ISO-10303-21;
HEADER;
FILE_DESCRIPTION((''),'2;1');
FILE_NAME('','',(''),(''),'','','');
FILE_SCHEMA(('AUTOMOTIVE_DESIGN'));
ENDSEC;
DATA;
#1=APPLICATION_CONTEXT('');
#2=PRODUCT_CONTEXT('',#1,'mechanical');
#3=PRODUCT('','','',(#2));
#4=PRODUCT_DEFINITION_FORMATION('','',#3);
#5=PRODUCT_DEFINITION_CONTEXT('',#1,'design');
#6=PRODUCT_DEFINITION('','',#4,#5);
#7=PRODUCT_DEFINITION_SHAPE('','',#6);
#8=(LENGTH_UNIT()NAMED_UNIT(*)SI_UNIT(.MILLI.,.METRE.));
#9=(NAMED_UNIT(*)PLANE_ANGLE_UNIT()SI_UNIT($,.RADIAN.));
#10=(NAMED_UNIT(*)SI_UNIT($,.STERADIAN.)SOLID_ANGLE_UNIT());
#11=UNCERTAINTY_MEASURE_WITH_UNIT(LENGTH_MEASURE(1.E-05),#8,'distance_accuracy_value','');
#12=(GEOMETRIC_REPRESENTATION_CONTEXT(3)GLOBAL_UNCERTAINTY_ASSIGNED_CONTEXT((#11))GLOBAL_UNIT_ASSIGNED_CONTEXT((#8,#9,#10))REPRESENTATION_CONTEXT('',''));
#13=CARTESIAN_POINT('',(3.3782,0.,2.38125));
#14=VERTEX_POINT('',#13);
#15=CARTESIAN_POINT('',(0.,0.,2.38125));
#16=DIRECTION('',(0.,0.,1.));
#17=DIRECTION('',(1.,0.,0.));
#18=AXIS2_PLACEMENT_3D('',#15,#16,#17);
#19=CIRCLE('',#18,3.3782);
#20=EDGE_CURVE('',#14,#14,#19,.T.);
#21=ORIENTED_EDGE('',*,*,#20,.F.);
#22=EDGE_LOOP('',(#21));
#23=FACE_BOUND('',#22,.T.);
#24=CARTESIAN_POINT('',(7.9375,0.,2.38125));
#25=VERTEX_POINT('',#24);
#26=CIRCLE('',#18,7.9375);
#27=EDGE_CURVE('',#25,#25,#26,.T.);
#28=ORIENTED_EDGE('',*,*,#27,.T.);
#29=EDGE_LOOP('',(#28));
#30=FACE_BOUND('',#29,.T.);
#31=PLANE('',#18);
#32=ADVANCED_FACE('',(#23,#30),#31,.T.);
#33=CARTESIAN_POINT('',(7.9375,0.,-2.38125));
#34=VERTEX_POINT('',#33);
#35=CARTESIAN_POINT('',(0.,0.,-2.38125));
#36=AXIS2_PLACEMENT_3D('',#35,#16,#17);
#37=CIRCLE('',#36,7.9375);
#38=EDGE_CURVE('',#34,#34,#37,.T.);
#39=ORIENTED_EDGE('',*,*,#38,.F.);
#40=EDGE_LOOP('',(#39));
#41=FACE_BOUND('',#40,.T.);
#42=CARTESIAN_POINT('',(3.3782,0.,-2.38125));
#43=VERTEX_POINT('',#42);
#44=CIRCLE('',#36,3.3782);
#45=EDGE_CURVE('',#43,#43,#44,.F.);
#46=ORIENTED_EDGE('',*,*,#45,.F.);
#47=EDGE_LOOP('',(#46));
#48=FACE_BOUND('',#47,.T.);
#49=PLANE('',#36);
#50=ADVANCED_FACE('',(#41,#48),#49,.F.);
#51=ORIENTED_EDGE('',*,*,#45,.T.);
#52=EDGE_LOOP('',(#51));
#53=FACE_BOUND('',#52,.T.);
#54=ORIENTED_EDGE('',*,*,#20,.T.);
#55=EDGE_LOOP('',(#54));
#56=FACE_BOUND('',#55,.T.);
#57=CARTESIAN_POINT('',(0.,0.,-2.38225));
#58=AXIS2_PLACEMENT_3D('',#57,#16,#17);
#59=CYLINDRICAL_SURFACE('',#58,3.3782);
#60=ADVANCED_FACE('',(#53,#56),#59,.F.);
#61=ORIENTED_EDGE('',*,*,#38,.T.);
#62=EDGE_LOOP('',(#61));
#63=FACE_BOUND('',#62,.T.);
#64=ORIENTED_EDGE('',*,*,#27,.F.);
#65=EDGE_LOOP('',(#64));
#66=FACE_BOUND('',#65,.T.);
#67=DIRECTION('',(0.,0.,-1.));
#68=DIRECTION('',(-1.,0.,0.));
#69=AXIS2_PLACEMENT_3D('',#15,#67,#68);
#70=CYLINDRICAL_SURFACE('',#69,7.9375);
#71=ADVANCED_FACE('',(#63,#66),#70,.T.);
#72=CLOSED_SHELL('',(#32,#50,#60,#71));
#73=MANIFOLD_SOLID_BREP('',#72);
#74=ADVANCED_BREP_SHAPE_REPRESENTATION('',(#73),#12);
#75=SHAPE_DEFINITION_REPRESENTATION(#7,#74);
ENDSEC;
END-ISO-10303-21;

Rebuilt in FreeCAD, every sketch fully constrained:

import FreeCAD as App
import Part
import Sketcher

V = App.Vector
Q = App.Units.Quantity

doc = App.newDocument("Part")
body = doc.addObject("PartDesign::Body", "Body")

sketch1 = body.newObject("Sketcher::SketchObject", "Sketch")
sketch1.AttachmentSupport = (doc.getObject("XY_Plane"), [""])
sketch1.MapMode = "FlatFace"
sketch1.addGeometry(Part.Circle(V(0, 0, 0), V(0, 0, 1), 7.9375), False)
sketch1.addConstraint([
    Sketcher.Constraint("Coincident", 0, 3, -1, 1),
    Sketcher.Constraint("Diameter", 0, Q("0.625 in")),
])
pad1 = body.newObject("PartDesign::Pad", "Pad")
pad1.Profile = sketch1
pad1.Length = Q("0.1875 in")
pad1.Midplane = True

sketch2 = body.newObject("Sketcher::SketchObject", "Sketch001")
sketch2.AttachmentSupport = (doc.getObject("XY_Plane"), [""])
sketch2.MapMode = "FlatFace"
sketch2.AttachmentOffset = App.Placement(V(0, 0, 0.09375 * 25.4), App.Rotation())
sketch2.addGeometry(Part.Circle(V(0, 0, 0), V(0, 0, 1), 3.3782), False)
sketch2.addConstraint([
    Sketcher.Constraint("Coincident", 0, 3, -1, 1),
    Sketcher.Constraint("Diameter", 0, Q("0.266 in")),
])
pocket1 = body.newObject("PartDesign::Pocket", "Pocket")
pocket1.Profile = sketch2
pocket1.Type = "UpToFirst"

doc.recompute()
